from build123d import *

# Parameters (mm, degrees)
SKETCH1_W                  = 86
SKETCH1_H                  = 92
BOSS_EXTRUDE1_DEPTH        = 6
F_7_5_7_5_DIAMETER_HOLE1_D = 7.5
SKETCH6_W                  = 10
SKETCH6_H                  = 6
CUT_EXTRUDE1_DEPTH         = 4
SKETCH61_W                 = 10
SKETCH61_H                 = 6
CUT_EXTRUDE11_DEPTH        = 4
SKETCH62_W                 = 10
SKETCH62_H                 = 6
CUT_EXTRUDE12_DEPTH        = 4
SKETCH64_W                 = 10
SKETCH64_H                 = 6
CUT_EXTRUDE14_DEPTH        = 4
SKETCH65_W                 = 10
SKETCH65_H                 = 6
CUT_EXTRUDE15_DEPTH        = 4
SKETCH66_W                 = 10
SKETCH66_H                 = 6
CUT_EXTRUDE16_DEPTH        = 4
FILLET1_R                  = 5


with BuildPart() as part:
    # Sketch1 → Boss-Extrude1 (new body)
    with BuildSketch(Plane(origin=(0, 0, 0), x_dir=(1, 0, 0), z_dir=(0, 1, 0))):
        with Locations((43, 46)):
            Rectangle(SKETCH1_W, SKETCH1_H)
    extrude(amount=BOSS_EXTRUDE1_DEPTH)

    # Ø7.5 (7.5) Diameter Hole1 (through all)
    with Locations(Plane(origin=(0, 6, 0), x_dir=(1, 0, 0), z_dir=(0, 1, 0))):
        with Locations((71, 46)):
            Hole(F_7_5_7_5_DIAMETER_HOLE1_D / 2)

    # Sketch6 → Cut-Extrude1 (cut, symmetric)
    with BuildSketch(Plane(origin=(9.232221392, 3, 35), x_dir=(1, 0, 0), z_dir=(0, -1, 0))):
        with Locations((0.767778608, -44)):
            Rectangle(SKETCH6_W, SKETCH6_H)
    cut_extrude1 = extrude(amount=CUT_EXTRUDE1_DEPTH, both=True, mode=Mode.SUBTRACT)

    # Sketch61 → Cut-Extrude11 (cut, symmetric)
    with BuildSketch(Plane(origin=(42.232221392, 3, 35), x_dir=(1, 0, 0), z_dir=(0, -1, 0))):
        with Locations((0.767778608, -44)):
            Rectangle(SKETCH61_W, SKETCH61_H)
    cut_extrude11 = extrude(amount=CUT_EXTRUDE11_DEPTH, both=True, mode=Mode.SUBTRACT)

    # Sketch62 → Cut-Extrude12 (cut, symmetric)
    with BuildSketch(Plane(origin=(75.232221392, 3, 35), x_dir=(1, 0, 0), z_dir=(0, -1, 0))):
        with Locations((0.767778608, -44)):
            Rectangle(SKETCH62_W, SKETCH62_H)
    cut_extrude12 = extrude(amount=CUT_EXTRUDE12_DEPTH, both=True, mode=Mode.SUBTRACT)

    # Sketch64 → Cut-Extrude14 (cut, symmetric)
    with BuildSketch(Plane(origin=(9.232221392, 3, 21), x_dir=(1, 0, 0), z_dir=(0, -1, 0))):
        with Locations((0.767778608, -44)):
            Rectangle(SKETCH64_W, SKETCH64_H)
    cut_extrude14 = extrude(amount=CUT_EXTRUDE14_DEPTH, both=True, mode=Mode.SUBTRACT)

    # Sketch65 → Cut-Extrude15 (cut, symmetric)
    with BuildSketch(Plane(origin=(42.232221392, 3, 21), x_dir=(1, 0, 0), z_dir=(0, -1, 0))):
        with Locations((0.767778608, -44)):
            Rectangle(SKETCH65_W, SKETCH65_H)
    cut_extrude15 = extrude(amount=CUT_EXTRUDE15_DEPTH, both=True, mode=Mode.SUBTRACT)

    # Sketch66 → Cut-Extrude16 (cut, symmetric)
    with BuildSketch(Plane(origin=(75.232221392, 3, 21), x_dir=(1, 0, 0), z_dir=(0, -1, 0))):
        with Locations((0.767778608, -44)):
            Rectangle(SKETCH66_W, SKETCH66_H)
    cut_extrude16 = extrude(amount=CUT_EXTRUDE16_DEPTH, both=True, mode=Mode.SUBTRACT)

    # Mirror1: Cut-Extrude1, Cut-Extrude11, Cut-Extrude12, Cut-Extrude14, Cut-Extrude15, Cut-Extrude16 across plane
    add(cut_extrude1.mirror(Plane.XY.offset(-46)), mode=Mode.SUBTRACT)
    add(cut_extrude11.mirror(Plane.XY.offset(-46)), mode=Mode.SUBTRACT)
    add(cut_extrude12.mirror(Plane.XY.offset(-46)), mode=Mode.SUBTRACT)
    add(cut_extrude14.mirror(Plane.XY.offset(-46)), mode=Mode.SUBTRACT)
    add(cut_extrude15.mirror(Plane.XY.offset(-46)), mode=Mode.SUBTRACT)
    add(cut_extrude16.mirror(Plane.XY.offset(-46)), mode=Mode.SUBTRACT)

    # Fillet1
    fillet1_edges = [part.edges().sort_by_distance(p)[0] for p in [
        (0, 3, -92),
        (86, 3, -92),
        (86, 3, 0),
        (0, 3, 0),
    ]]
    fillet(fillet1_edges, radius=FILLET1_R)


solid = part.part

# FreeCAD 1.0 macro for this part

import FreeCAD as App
import Part
import Sketcher

V = App.Vector
Q = App.Units.Quantity


def edges_at(feature, points):
    """Names of the edges that pass closest to the given points."""
    edges = feature.Shape.Edges
    near = lambda p: min(range(len(edges)), key=lambda i: edges[i].distToShape(Part.Vertex(*p))[0])
    return sorted({f"Edge{near(p) + 1}" for p in points})


def add_polygon(sketch, points):
    """Adds a closed chain of lines whose ends are joined by coincident constraints."""
    first, n = sketch.GeometryCount, len(points)
    for a, b in zip(points, points[1:] + points[:1]):
        sketch.addGeometry(Part.LineSegment(App.Vector(*a, 0), App.Vector(*b, 0)), False)
    for i in range(n):
        sketch.addConstraint(Sketcher.Constraint("Coincident", first + i, 2, first + (i + 1) % n, 1))

doc = App.newDocument("Part")
body = doc.addObject("PartDesign::Body", "Body")

# Sketch on XZ plane
sketch1 = body.newObject("Sketcher::SketchObject", "Sketch")
sketch1.AttachmentSupport = (doc.getObject("XZ_Plane"), [""])
sketch1.MapMode = "FlatFace"
add_polygon(sketch1, [(0, -92), (0, 0), (86, 0), (86, -92)])  # lines 0-3
sketch1.addConstraint([
    Sketcher.Constraint("Vertical", 0),
    Sketcher.Constraint("Horizontal", 1),
    Sketcher.Constraint("Vertical", 2),
    Sketcher.Constraint("Horizontal", 3),
    Sketcher.Constraint("Coincident", 0, 2, -1, 1),
    Sketcher.Constraint("DistanceX", 1, 1, 1, 2, Q("86 mm")),
    Sketcher.Constraint("DistanceY", 0, 1, 0, 2, Q("92 mm")),
])
pad1 = body.newObject("PartDesign::Pad", "Pad")
pad1.Profile = sketch1
pad1.Length = 6
pad1.Reversed = True

# Sketch on XZ plane
sketch2 = body.newObject("Sketcher::SketchObject", "Sketch001")
sketch2.AttachmentSupport = (doc.getObject("XZ_Plane"), [""])
sketch2.MapMode = "FlatFace"
sketch2.AttachmentOffset = App.Placement(V(0, 0, -6), App.Rotation())
sketch2.addGeometry(Part.Circle(V(71, -46, 0), V(0, 0, 1), 3.8), False)
sketch2.addConstraint([
    Sketcher.Constraint("Diameter", 0, Q("7.5 mm")),
    Sketcher.Constraint("DistanceX", -1, 1, 0, 3, Q("71 mm")),
    Sketcher.Constraint("DistanceY", 0, 3, -1, 1, Q("46 mm")),
])
doc.recompute()
hole = body.newObject("PartDesign::Hole", "Hole")
hole.Profile = sketch2
hole.ThreadType = "None"
hole.Diameter = 7.5
hole.DepthType = "ThroughAll"
hole.Reversed = True

# Sketch on XZ plane
sketch3 = body.newObject("Sketcher::SketchObject", "Sketch002")
sketch3.AttachmentSupport = (doc.getObject("XZ_Plane"), [""])
sketch3.MapMode = "FlatFace"
sketch3.AttachmentOffset = App.Placement(V(0, 0, -3), App.Rotation())
add_polygon(sketch3, [(5, -6), (5, -12), (15, -12), (15, -6)])  # lines 0-3
sketch3.addConstraint([
    Sketcher.Constraint("Vertical", 0),
    Sketcher.Constraint("Horizontal", 1),
    Sketcher.Constraint("Vertical", 2),
    Sketcher.Constraint("Horizontal", 3),
    Sketcher.Constraint("DistanceX", 1, 1, 1, 2, Q("10 mm")),
    Sketcher.Constraint("DistanceY", 0, 2, 0, 1, Q("6 mm")),
    Sketcher.Constraint("DistanceX", -1, 1, 0, 2, Q("5 mm")),
    Sketcher.Constraint("DistanceY", 0, 2, -1, 1, Q("12 mm")),
])
pocket1 = body.newObject("PartDesign::Pocket", "Pocket")
pocket1.Profile = sketch3
pocket1.Length = 8
pocket1.Midplane = True

# Sketch on XZ plane
sketch4 = body.newObject("Sketcher::SketchObject", "Sketch003")
sketch4.AttachmentSupport = (doc.getObject("XZ_Plane"), [""])
sketch4.MapMode = "FlatFace"
sketch4.AttachmentOffset = App.Placement(V(0, 0, -3), App.Rotation())
add_polygon(sketch4, [(38, -6), (38, -12), (48, -12), (48, -6)])  # lines 0-3
sketch4.addConstraint([
    Sketcher.Constraint("Vertical", 0),
    Sketcher.Constraint("Horizontal", 1),
    Sketcher.Constraint("Vertical", 2),
    Sketcher.Constraint("Horizontal", 3),
    Sketcher.Constraint("DistanceX", 1, 1, 1, 2, Q("10 mm")),
    Sketcher.Constraint("DistanceY", 0, 2, 0, 1, Q("6 mm")),
    Sketcher.Constraint("DistanceX", -1, 1, 0, 2, Q("38 mm")),
    Sketcher.Constraint("DistanceY", 0, 2, -1, 1, Q("12 mm")),
])
pocket2 = body.newObject("PartDesign::Pocket", "Pocket001")
pocket2.Profile = sketch4
pocket2.Length = 8
pocket2.Midplane = True

# Sketch on XZ plane
sketch5 = body.newObject("Sketcher::SketchObject", "Sketch004")
sketch5.AttachmentSupport = (doc.getObject("XZ_Plane"), [""])
sketch5.MapMode = "FlatFace"
sketch5.AttachmentOffset = App.Placement(V(0, 0, -3), App.Rotation())
add_polygon(sketch5, [(71, -6), (71, -12), (81, -12), (81, -6)])  # lines 0-3
sketch5.addConstraint([
    Sketcher.Constraint("Vertical", 0),
    Sketcher.Constraint("Horizontal", 1),
    Sketcher.Constraint("Vertical", 2),
    Sketcher.Constraint("Horizontal", 3),
    Sketcher.Constraint("DistanceX", 1, 1, 1, 2, Q("10 mm")),
    Sketcher.Constraint("DistanceY", 0, 2, 0, 1, Q("6 mm")),
    Sketcher.Constraint("DistanceX", -1, 1, 0, 2, Q("71 mm")),
    Sketcher.Constraint("DistanceY", 0, 2, -1, 1, Q("12 mm")),
])
pocket3 = body.newObject("PartDesign::Pocket", "Pocket002")
pocket3.Profile = sketch5
pocket3.Length = 8
pocket3.Midplane = True

# Sketch on XZ plane
sketch6 = body.newObject("Sketcher::SketchObject", "Sketch005")
sketch6.AttachmentSupport = (doc.getObject("XZ_Plane"), [""])
sketch6.MapMode = "FlatFace"
sketch6.AttachmentOffset = App.Placement(V(0, 0, -3), App.Rotation())
add_polygon(sketch6, [(5, -20), (5, -26), (15, -26), (15, -20)])  # lines 0-3
sketch6.addConstraint([
    Sketcher.Constraint("Vertical", 0),
    Sketcher.Constraint("Horizontal", 1),
    Sketcher.Constraint("Vertical", 2),
    Sketcher.Constraint("Horizontal", 3),
    Sketcher.Constraint("DistanceX", 1, 1, 1, 2, Q("10 mm")),
    Sketcher.Constraint("DistanceY", 0, 2, 0, 1, Q("6 mm")),
    Sketcher.Constraint("DistanceX", -1, 1, 0, 2, Q("5 mm")),
    Sketcher.Constraint("DistanceY", 0, 2, -1, 1, Q("26 mm")),
])
pocket4 = body.newObject("PartDesign::Pocket", "Pocket003")
pocket4.Profile = sketch6
pocket4.Length = 8
pocket4.Midplane = True

# Sketch on XZ plane
sketch7 = body.newObject("Sketcher::SketchObject", "Sketch006")
sketch7.AttachmentSupport = (doc.getObject("XZ_Plane"), [""])
sketch7.MapMode = "FlatFace"
sketch7.AttachmentOffset = App.Placement(V(0, 0, -3), App.Rotation())
add_polygon(sketch7, [(38, -20), (38, -26), (48, -26), (48, -20)])  # lines 0-3
sketch7.addConstraint([
    Sketcher.Constraint("Vertical", 0),
    Sketcher.Constraint("Horizontal", 1),
    Sketcher.Constraint("Vertical", 2),
    Sketcher.Constraint("Horizontal", 3),
    Sketcher.Constraint("DistanceX", 1, 1, 1, 2, Q("10 mm")),
    Sketcher.Constraint("DistanceY", 0, 2, 0, 1, Q("6 mm")),
    Sketcher.Constraint("DistanceX", -1, 1, 0, 2, Q("38 mm")),
    Sketcher.Constraint("DistanceY", 0, 2, -1, 1, Q("26 mm")),
])
pocket5 = body.newObject("PartDesign::Pocket", "Pocket004")
pocket5.Profile = sketch7
pocket5.Length = 8
pocket5.Midplane = True

# Sketch on XZ plane
sketch8 = body.newObject("Sketcher::SketchObject", "Sketch007")
sketch8.AttachmentSupport = (doc.getObject("XZ_Plane"), [""])
sketch8.MapMode = "FlatFace"
sketch8.AttachmentOffset = App.Placement(V(0, 0, -3), App.Rotation())
add_polygon(sketch8, [(71, -20), (71, -26), (81, -26), (81, -20)])  # lines 0-3
sketch8.addConstraint([
    Sketcher.Constraint("Vertical", 0),
    Sketcher.Constraint("Horizontal", 1),
    Sketcher.Constraint("Vertical", 2),
    Sketcher.Constraint("Horizontal", 3),
    Sketcher.Constraint("DistanceX", 1, 1, 1, 2, Q("10 mm")),
    Sketcher.Constraint("DistanceY", 0, 2, 0, 1, Q("6 mm")),
    Sketcher.Constraint("DistanceX", -1, 1, 0, 2, Q("71 mm")),
    Sketcher.Constraint("DistanceY", 0, 2, -1, 1, Q("26 mm")),
])
pocket6 = body.newObject("PartDesign::Pocket", "Pocket005")
pocket6.Profile = sketch8
pocket6.Length = 8
pocket6.Midplane = True
doc.recompute()

datumplane = body.newObject("PartDesign::Plane", "DatumPlane")
datumplane.AttachmentSupport = (doc.getObject("XY_Plane"), [""])
datumplane.MapMode = "FlatFace"
datumplane.AttachmentOffset = App.Placement(V(0, 0, -46), App.Rotation())
mirrored = body.newObject("PartDesign::Mirrored", "Mirrored")
mirrored.Originals = [pocket1, pocket2, pocket3, pocket4, pocket5, pocket6]
mirrored.MirrorPlane = (datumplane, [""])
body.Tip = mirrored
doc.recompute()

fillet = body.newObject("PartDesign::Fillet", "Fillet")
fillet.Base = (mirrored, edges_at(mirrored, [
    (0, 3, -92),
    (86, 3, -92),
    (86, 3, 0),
    (0, 3, 0),
]))
fillet.Radius = 5

doc.recompute()
